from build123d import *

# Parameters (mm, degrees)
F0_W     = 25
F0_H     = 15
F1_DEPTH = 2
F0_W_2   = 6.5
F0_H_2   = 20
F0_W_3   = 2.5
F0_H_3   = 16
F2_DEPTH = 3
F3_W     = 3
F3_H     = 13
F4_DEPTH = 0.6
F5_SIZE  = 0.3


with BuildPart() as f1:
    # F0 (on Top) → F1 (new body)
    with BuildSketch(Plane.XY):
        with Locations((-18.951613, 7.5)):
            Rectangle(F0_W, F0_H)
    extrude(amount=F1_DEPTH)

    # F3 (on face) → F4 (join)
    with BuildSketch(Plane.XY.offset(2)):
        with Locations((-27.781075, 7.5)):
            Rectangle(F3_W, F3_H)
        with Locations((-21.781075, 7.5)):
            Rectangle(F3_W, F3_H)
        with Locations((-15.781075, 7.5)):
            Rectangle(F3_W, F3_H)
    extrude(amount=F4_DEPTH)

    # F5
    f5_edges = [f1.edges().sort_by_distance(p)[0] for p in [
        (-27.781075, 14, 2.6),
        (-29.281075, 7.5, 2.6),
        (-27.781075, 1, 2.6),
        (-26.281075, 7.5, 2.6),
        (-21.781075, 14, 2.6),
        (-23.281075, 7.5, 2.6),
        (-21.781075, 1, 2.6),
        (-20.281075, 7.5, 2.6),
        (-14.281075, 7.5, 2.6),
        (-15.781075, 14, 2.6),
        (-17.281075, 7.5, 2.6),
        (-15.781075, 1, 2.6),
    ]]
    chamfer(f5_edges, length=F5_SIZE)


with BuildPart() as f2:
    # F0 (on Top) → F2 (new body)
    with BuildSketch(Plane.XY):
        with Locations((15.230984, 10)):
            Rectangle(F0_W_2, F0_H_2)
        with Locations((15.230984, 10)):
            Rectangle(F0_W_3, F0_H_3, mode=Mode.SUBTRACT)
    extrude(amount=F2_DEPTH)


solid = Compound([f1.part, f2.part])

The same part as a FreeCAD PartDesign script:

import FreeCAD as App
import Part
import Sketcher

V = App.Vector


def edges_at(feature, points):
    """Names of the edges that pass closest to the given points."""
    edges = feature.Shape.Edges
    near = lambda p: min(range(len(edges)), key=lambda i: edges[i].distToShape(Part.Vertex(*p))[0])
    return sorted({f"Edge{near(p) + 1}" for p in points})

doc = App.newDocument("Part")
body = doc.addObject("PartDesign::Body", "Body")

sketch1 = doc.addObject("Sketcher::SketchObject", "Sketch")
body.addObject(sketch1)
sketch1.AttachmentSupport = (doc.XY_Plane, [""])
sketch1.MapMode = "FlatFace"
sketch1.addGeometry([
    Part.LineSegment(V(-31, 15, 0), V(-31, 0, 0)),
    Part.LineSegment(V(-31, 0, 0), V(-6, 0, 0)),
    Part.LineSegment(V(-6, 0, 0), V(-6, 15, 0)),
    Part.LineSegment(V(-6, 15, 0), V(-31, 15, 0)),
], False)
sketch1.addConstraint([
    Sketcher.Constraint("Coincident", 0, 2, 1, 1),
    Sketcher.Constraint("Coincident", 1, 2, 2, 1),
    Sketcher.Constraint("Coincident", 2, 2, 3, 1),
    Sketcher.Constraint("Coincident", 3, 2, 0, 1),
    Sketcher.Constraint("Vertical", 0),
    Sketcher.Constraint("Horizontal", 1),
    Sketcher.Constraint("Vertical", 2),
    Sketcher.Constraint("Horizontal", 3),
    Sketcher.Constraint("PointOnObject", 0, 2, -1),
    Sketcher.Constraint("DistanceX", 1, 1, 1, 2, 25.0),
    Sketcher.Constraint("DistanceY", 0, 2, 0, 1, 15.0),
    Sketcher.Constraint("DistanceX", 0, 2, -1, 1, 31.451613),
])
pad1 = doc.addObject("PartDesign::Pad", "Pad")
body.addObject(pad1)
pad1.Profile = sketch1
pad1.Length = 2

sketch2 = doc.addObject("Sketcher::SketchObject", "Sketch001")
body.addObject(sketch2)
sketch2.AttachmentSupport = (doc.XY_Plane, [""])
sketch2.MapMode = "FlatFace"
sketch2.AttachmentOffset = App.Placement(V(0, 0, 2), App.Rotation())
sketch2.addGeometry([
    Part.LineSegment(V(-29.3, 14, 0), V(-29.3, 1, 0)),
    Part.LineSegment(V(-29.3, 1, 0), V(-26.3, 1, 0)),
    Part.LineSegment(V(-26.3, 1, 0), V(-26.3, 14, 0)),
    Part.LineSegment(V(-26.3, 14, 0), V(-29.3, 14, 0)),
    Part.LineSegment(V(-23.3, 14, 0), V(-23.3, 1, 0)),
    Part.LineSegment(V(-23.3, 1, 0), V(-20.3, 1, 0)),
    Part.LineSegment(V(-20.3, 1, 0), V(-20.3, 14, 0)),
    Part.LineSegment(V(-20.3, 14, 0), V(-23.3, 14, 0)),
    Part.LineSegment(V(-17.3, 14, 0), V(-17.3, 1, 0)),
    Part.LineSegment(V(-17.3, 1, 0), V(-14.3, 1, 0)),
    Part.LineSegment(V(-14.3, 1, 0), V(-14.3, 14, 0)),
    Part.LineSegment(V(-14.3, 14, 0), V(-17.3, 14, 0)),
], False)
sketch2.addConstraint([
    Sketcher.Constraint("Coincident", 0, 2, 1, 1),
    Sketcher.Constraint("Coincident", 1, 2, 2, 1),
    Sketcher.Constraint("Coincident", 2, 2, 3, 1),
    Sketcher.Constraint("Coincident", 3, 2, 0, 1),
    Sketcher.Constraint("Coincident", 4, 2, 5, 1),
    Sketcher.Constraint("Coincident", 5, 2, 6, 1),
    Sketcher.Constraint("Coincident", 6, 2, 7, 1),
    Sketcher.Constraint("Coincident", 7, 2, 4, 1),
    Sketcher.Constraint("Coincident", 8, 2, 9, 1),
    Sketcher.Constraint("Coincident", 9, 2, 10, 1),
    Sketcher.Constraint("Coincident", 10, 2, 11, 1),
    Sketcher.Constraint("Coincident", 11, 2, 8, 1),
    Sketcher.Constraint("Vertical", 0),
    Sketcher.Constraint("Horizontal", 1),
    Sketcher.Constraint("Vertical", 2),
    Sketcher.Constraint("Horizontal", 3),
    Sketcher.Constraint("Vertical", 4),
    Sketcher.Constraint("Horizontal", 5),
    Sketcher.Constraint("Vertical", 6),
    Sketcher.Constraint("Horizontal", 7),
    Sketcher.Constraint("Vertical", 8),
    Sketcher.Constraint("Horizontal", 9),
    Sketcher.Constraint("Vertical", 10),
    Sketcher.Constraint("Horizontal", 11),
    Sketcher.Constraint("Horizontal", 1, 2, 4, 2),
    Sketcher.Constraint("Horizontal", 3, 2, 6, 2),
    Sketcher.Constraint("Horizontal", 5, 2, 8, 2),
    Sketcher.Constraint("Horizontal", 7, 2, 10, 2),
    Sketcher.Constraint("Equal", 3, 5),
    Sketcher.Constraint("Equal", 7, 9),
    Sketcher.Constraint("DistanceX", 1, 1, 1, 2, 3.0),
    Sketcher.Constraint("DistanceY", 0, 2, 0, 1, 13.0),
    Sketcher.Constraint("DistanceY", -1, 1, 0, 2, 1.0),
    Sketcher.Constraint("DistanceX", 1, 2, 4, 2, 3.0),
    Sketcher.Constraint("DistanceX", 5, 2, 8, 2, 3.0),
    Sketcher.Constraint("DistanceX", 0, 2, -1, 1, 29.281075),
])
pad2 = doc.addObject("PartDesign::Pad", "Pad001")
body.addObject(pad2)
pad2.Profile = sketch2
pad2.Length = 0.6
doc.recompute()

chamfer = doc.addObject("PartDesign::Chamfer", "Chamfer")
body.addObject(chamfer)
chamfer.Base = (pad2, edges_at(pad2, [
    (-27.781, 14, 2.6),
    (-29.281, 7.5, 2.6),
    (-27.781, 1, 2.6),
    (-26.281, 7.5, 2.6),
    (-21.781, 14, 2.6),
    (-23.281, 7.5, 2.6),
    (-21.781, 1, 2.6),
    (-20.281, 7.5, 2.6),
    (-14.281, 7.5, 2.6),
    (-15.781, 14, 2.6),
    (-17.281, 7.5, 2.6),
    (-15.781, 1, 2.6),
]))
chamfer.Size = 0.3
body2 = doc.addObject("PartDesign::Body", "Body001")

sketch3 = doc.addObject("Sketcher::SketchObject", "Sketch002")
body2.addObject(sketch3)
sketch3.AttachmentSupport = (doc.getObject("XY_Plane001"), [""])
sketch3.MapMode = "FlatFace"
sketch3.addGeometry([
    Part.LineSegment(V(12, 20, 0), V(12, 0, 0)),
    Part.LineSegment(V(12, 0, 0), V(18.5, 0, 0)),
    Part.LineSegment(V(18.5, 0, 0), V(18.5, 20, 0)),
    Part.LineSegment(V(18.5, 20, 0), V(12, 20, 0)),
    Part.LineSegment(V(16.5, 2, 0), V(14, 2, 0)),
    Part.LineSegment(V(14, 2, 0), V(14, 18, 0)),
    Part.LineSegment(V(14, 18, 0), V(16.5, 18, 0)),
    Part.LineSegment(V(16.5, 18, 0), V(16.5, 2, 0)),
], False)
sketch3.addConstraint([
    Sketcher.Constraint("Coincident", 0, 2, 1, 1),
    Sketcher.Constraint("Coincident", 1, 2, 2, 1),
    Sketcher.Constraint("Coincident", 2, 2, 3, 1),
    Sketcher.Constraint("Coincident", 3, 2, 0, 1),
    Sketcher.Constraint("Coincident", 4, 2, 5, 1),
    Sketcher.Constraint("Coincident", 5, 2, 6, 1),
    Sketcher.Constraint("Coincident", 6, 2, 7, 1),
    Sketcher.Constraint("Coincident", 7, 2, 4, 1),
    Sketcher.Constraint("Vertical", 0),
    Sketcher.Constraint("Horizontal", 1),
    Sketcher.Constraint("Vertical", 2),
    Sketcher.Constraint("Horizontal", 3),
    Sketcher.Constraint("Horizontal", 4),
    Sketcher.Constraint("Vertical", 5),
    Sketcher.Constraint("Horizontal", 6),
    Sketcher.Constraint("Vertical", 7),
    Sketcher.Constraint("PointOnObject", 0, 2, -1),
    Sketcher.Constraint("DistanceY", 0, 2, 0, 1, 20.0),
    Sketcher.Constraint("DistanceY", 5, 1, 5, 2, 16.0),
    Sketcher.Constraint("DistanceX", 1, 1, 1, 2, 6.5),
    Sketcher.Constraint("DistanceX", 4, 2, 4, 1, 2.5),
    Sketcher.Constraint("DistanceY", -1, 1, 4, 2, 2.0),
    Sketcher.Constraint("DistanceX", 0, 2, 4, 2, 2.0),
    Sketcher.Constraint("DistanceX", -1, 1, 0, 2, 11.980984),
])
pad3 = doc.addObject("PartDesign::Pad", "Pad002")
body2.addObject(pad3)
pad3.Profile = sketch3
pad3.Length = 3

doc.recompute()
